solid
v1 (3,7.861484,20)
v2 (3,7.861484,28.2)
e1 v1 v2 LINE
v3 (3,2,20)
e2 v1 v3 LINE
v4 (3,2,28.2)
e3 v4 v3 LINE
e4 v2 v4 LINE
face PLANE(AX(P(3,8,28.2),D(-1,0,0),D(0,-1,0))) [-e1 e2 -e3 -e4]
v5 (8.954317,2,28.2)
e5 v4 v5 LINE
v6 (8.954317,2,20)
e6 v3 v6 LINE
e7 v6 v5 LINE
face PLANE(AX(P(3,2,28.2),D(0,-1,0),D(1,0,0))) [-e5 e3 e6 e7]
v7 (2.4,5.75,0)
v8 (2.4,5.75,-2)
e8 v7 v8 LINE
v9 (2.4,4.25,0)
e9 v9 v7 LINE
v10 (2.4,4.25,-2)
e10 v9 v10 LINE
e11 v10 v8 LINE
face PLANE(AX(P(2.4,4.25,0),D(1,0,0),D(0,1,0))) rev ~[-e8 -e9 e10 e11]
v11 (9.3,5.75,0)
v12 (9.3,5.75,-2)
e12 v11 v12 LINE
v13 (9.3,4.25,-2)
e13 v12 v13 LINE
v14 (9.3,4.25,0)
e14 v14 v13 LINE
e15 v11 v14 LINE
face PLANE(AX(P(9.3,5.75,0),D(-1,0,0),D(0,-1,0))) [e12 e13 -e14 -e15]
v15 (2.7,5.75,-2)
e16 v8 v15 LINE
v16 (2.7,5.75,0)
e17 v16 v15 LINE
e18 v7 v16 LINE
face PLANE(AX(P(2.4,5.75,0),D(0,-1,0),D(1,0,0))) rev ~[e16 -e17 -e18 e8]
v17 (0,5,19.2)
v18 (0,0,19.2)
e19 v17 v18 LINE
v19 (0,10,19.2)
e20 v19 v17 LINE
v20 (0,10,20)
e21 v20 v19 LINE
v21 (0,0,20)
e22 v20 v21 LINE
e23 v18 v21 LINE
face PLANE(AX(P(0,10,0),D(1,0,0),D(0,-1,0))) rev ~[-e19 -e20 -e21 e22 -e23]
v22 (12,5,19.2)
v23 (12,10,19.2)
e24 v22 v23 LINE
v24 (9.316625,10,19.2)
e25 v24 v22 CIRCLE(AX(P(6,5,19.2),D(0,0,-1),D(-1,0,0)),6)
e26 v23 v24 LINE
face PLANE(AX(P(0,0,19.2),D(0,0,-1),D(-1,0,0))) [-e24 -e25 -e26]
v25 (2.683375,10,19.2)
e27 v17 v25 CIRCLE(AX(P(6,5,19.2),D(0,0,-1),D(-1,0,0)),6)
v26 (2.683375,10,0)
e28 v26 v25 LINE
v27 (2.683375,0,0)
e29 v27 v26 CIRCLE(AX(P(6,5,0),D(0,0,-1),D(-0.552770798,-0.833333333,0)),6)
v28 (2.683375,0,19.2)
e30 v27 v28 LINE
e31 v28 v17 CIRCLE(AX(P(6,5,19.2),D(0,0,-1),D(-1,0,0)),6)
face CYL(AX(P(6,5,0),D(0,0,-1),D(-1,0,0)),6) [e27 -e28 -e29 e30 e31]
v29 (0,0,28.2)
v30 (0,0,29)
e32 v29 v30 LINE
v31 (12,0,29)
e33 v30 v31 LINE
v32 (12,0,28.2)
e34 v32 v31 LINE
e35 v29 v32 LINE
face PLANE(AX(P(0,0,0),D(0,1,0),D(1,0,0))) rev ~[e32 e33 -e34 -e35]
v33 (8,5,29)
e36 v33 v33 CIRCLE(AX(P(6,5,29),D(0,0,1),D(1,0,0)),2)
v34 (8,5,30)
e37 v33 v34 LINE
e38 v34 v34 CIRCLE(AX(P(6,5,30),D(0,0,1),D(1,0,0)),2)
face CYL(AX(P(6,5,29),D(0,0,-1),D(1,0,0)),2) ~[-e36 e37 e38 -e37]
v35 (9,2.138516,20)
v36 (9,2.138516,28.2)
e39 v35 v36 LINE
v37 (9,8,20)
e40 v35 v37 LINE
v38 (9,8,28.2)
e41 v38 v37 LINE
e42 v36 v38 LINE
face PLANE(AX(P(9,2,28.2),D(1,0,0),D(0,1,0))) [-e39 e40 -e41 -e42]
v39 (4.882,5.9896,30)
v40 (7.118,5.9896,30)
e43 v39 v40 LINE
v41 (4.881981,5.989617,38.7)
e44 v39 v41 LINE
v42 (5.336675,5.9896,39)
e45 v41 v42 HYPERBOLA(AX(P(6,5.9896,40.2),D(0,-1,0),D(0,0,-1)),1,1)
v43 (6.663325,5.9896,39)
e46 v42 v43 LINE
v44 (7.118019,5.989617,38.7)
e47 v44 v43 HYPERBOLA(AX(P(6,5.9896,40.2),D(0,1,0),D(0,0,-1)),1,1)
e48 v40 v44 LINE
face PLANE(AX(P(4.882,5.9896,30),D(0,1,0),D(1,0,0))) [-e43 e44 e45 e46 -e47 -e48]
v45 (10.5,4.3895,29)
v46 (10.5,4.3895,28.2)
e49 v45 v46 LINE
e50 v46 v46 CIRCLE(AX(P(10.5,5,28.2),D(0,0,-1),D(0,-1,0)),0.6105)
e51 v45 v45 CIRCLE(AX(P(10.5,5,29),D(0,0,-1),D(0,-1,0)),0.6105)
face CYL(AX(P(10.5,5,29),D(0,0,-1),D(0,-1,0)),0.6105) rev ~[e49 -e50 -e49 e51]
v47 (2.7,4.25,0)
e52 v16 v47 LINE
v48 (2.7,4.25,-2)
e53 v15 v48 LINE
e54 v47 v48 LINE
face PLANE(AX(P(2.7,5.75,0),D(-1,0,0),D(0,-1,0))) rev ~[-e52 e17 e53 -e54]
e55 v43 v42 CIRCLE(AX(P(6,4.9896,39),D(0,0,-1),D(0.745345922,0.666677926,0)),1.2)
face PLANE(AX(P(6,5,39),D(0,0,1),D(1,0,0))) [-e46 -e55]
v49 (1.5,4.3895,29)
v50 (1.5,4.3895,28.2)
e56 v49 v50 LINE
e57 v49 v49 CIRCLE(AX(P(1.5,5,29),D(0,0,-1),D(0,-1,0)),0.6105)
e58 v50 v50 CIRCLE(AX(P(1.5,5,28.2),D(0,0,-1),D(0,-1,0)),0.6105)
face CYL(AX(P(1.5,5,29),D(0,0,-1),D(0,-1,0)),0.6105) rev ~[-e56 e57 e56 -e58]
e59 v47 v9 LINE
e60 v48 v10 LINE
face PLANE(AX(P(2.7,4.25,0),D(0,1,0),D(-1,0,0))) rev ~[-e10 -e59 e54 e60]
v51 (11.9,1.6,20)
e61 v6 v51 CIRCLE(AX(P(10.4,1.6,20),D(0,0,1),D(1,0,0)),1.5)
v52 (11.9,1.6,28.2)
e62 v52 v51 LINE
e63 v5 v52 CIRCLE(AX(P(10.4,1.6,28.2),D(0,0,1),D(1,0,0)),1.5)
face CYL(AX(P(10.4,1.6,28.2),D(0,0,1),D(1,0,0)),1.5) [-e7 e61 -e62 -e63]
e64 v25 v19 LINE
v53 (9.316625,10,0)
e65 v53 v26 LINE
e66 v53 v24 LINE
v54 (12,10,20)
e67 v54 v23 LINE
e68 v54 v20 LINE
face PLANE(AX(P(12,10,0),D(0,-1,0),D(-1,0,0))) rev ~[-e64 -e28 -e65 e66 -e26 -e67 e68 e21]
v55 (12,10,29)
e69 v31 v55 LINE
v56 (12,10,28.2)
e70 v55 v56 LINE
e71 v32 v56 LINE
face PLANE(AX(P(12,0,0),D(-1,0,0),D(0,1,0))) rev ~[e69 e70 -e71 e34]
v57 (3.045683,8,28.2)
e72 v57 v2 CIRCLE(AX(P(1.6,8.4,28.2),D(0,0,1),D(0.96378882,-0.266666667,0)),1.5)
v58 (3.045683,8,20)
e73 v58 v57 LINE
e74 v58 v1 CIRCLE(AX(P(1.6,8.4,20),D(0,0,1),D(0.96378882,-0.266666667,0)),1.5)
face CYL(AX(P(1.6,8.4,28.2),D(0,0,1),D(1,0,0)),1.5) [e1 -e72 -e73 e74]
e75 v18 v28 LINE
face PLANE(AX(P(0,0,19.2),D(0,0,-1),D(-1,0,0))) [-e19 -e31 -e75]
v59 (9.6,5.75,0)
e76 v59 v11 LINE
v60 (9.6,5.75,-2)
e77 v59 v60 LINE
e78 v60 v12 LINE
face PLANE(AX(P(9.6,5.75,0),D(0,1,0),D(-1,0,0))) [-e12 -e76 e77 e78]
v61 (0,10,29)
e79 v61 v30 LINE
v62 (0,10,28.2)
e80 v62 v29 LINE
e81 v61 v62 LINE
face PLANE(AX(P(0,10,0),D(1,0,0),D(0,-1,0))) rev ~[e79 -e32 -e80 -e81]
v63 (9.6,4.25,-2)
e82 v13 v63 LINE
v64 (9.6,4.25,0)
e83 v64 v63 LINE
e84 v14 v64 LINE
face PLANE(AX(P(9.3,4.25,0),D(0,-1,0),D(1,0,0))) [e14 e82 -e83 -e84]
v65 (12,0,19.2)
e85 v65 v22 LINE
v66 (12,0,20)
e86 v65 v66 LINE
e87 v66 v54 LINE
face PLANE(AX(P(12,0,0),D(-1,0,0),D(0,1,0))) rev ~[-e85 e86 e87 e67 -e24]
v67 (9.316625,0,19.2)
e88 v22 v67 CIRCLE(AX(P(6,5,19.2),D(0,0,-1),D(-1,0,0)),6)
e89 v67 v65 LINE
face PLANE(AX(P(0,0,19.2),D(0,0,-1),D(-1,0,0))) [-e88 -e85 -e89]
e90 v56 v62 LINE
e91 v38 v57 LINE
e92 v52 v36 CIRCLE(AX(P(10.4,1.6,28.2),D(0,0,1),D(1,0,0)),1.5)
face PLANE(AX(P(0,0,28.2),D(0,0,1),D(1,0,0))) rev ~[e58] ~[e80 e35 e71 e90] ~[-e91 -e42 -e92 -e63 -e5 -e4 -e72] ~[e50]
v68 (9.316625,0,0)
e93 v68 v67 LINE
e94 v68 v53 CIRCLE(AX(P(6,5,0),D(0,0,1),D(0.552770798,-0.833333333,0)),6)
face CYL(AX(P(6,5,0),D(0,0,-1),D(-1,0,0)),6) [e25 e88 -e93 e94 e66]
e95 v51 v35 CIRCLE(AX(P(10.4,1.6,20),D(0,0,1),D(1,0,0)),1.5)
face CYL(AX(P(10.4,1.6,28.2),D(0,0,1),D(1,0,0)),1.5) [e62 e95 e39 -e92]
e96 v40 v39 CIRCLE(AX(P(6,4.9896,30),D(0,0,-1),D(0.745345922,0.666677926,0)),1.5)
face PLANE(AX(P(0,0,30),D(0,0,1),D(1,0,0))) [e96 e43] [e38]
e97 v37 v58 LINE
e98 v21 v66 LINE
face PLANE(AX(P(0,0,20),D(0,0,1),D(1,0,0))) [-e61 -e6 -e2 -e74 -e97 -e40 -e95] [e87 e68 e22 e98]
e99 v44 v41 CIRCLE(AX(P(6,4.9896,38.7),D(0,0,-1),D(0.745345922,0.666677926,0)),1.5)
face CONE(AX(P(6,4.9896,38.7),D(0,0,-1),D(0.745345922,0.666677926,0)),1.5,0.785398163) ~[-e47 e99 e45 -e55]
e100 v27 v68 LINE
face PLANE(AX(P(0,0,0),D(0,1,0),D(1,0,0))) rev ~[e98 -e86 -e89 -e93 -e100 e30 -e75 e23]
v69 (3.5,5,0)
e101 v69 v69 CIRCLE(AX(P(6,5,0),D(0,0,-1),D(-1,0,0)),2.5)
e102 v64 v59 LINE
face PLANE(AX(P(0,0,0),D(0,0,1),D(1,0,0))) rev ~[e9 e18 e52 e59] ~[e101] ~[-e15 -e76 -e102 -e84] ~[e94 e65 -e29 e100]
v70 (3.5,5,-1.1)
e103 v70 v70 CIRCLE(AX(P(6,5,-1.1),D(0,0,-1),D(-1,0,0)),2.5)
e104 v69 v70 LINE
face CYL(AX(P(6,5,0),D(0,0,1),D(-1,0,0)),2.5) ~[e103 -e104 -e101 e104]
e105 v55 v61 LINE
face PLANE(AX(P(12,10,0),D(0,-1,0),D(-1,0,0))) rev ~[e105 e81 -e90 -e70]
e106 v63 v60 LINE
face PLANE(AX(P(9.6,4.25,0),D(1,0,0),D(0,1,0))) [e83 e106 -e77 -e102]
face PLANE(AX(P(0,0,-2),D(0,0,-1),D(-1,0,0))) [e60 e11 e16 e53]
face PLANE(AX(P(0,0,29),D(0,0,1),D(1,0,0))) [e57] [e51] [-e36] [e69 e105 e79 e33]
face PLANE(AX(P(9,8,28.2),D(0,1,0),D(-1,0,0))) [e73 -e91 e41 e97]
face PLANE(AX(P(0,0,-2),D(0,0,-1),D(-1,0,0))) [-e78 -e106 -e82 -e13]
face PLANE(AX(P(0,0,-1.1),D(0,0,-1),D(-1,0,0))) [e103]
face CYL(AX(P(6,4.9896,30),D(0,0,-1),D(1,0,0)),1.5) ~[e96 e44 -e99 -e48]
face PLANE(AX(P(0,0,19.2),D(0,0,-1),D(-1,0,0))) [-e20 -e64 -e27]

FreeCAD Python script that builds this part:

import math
import FreeCAD as App
import Part
import Sketcher

V = App.Vector
Q = App.Units.Quantity


def edges_at(feature, points):
    """Names of the edges that pass closest to the given points."""
    edges = feature.Shape.Edges
    near = lambda p: min(range(len(edges)), key=lambda i: edges[i].distToShape(Part.Vertex(*p))[0])
    return sorted({f"Edge{near(p) + 1}" for p in points})

doc = App.newDocument("Part")
body = doc.addObject("PartDesign::Body", "Body")

# Sketch on XY plane
sketch1 = body.newObject("Sketcher::SketchObject", "Sketch")
sketch1.AttachmentSupport = (doc.getObject("XY_Plane"), [""])
sketch1.MapMode = "FlatFace"
sketch1.addGeometry([
    Part.LineSegment(V(0, 10, 0), V(0, 0, 0)),
    Part.LineSegment(V(0, 0, 0), V(12, 0, 0)),
    Part.LineSegment(V(12, 0, 0), V(12, 10, 0)),
    Part.LineSegment(V(12, 10, 0), V(0, 10, 0)),
], False)
sketch1.addConstraint([
    Sketcher.Constraint("Coincident", 0, 2, 1, 1),
    Sketcher.Constraint("Coincident", 1, 2, 2, 1),
    Sketcher.Constraint("Coincident", 2, 2, 3, 1),
    Sketcher.Constraint("Coincident", 3, 2, 0, 1),
    Sketcher.Constraint("Vertical", 0),
    Sketcher.Constraint("Horizontal", 1),
    Sketcher.Constraint("Vertical", 2),
    Sketcher.Constraint("Horizontal", 3),
    Sketcher.Constraint("Coincident", 0, 2, -1, 1),
    Sketcher.Constraint("DistanceX", 1, 1, 1, 2, Q("12 mm")),
    Sketcher.Constraint("DistanceY", 0, 2, 0, 1, Q("10 mm")),
])
pad1 = body.newObject("PartDesign::Pad", "Pad")
pad1.Profile = sketch1
pad1.Length = 20

# Sketch on XY plane
sketch2 = body.newObject("Sketcher::SketchObject", "Sketch001")
sketch2.AttachmentSupport = (doc.getObject("XY_Plane"), [""])
sketch2.MapMode = "FlatFace"
sketch2.AttachmentOffset = App.Placement(V(0, 0, 20), App.Rotation())
sketch2.addGeometry([
    Part.LineSegment(V(0, 0, 0), V(12, 0, 0)),
    Part.LineSegment(V(12, 0, 0), V(12, 10, 0)),
    Part.LineSegment(V(12, 10, 0), V(0, 10, 0)),
    Part.LineSegment(V(0, 10, 0), V(0, 0, 0)),
], False)
sketch2.addConstraint([
    Sketcher.Constraint("Coincident", 0, 2, 1, 1),
    Sketcher.Constraint("Coincident", 1, 2, 2, 1),
    Sketcher.Constraint("Coincident", 2, 2, 3, 1),
    Sketcher.Constraint("Coincident", 3, 2, 0, 1),
    Sketcher.Constraint("Horizontal", 0),
    Sketcher.Constraint("Vertical", 1),
    Sketcher.Constraint("Horizontal", 2),
    Sketcher.Constraint("Vertical", 3),
    Sketcher.Constraint("Coincident", 3, 2, -1, 1),
    Sketcher.Constraint("DistanceX", 0, 1, 0, 2, Q("12 mm")),
    Sketcher.Constraint("DistanceY", 1, 1, 1, 2, Q("10 mm")),
])
pad2 = body.newObject("PartDesign::Pad", "Pad001")
pad2.Profile = sketch2
pad2.Length = 9

# Sketch on XY plane
sketch3 = body.newObject("Sketcher::SketchObject", "Sketch002")
sketch3.AttachmentSupport = (doc.getObject("XY_Plane"), [""])
sketch3.MapMode = "FlatFace"
sketch3.AttachmentOffset = App.Placement(V(0, 0, 29), App.Rotation())
sketch3.addGeometry([
    Part.Circle(V(1.5, 5, 0), V(0, 0, 1), 0.6105),
    Part.Circle(V(10.5, 5, 0), V(0, 0, 1), 0.6105),
], False)
sketch3.addConstraint([
    Sketcher.Constraint("Equal", 0, 1),
    Sketcher.Constraint("Horizontal", 0, 3, 1, 3),
    Sketcher.Constraint("Diameter", 0, Q("1.221 mm")),
    Sketcher.Constraint("DistanceY", -1, 1, 0, 3, Q("5 mm")),
    Sketcher.Constraint("DistanceX", 0, 3, 1, 3, Q("9 mm")),
    Sketcher.Constraint("DistanceX", -1, 1, 0, 3, Q("1.5 mm")),
])
doc.recompute()
hole = body.newObject("PartDesign::Hole", "Hole")
hole.Profile = sketch3
hole.ThreadType = "None"
hole.Diameter = 1.221
hole.DepthType = "Dimension"
hole.Depth = 0.8
hole.DrillPoint = "Flat"

# Sketch on XY plane
sketch4 = body.newObject("Sketcher::SketchObject", "Sketch003")
sketch4.AttachmentSupport = (doc.getObject("XY_Plane"), [""])
sketch4.MapMode = "FlatFace"
sketch4.AttachmentOffset = App.Placement(V(0, 0, 28.2), App.Rotation())
sketch4.addGeometry([
    Part.LineSegment(V(12, 10, 0), V(0, 10, 0)),  # 0
    Part.LineSegment(V(0, 10, 0), V(0, 0, 0)),  # 1
    Part.LineSegment(V(0, 0, 0), V(12, 0, 0)),  # 2
    Part.LineSegment(V(12, 0, 0), V(12, 10, 0)),  # 3
    Part.LineSegment(V(9, 2, 0), V(3, 2, 0)),  # 4
    Part.LineSegment(V(3, 2, 0), V(3, 8, 0)),  # 5
    Part.LineSegment(V(3, 8, 0), V(9, 8, 0)),  # 6
    Part.LineSegment(V(9, 8, 0), V(9, 2, 0)),  # 7
], False)
sketch4.addConstraint([
    Sketcher.Constraint("Coincident", 0, 2, 1, 1),
    Sketcher.Constraint("Coincident", 1, 2, 2, 1),
    Sketcher.Constraint("Coincident", 2, 2, 3, 1),
    Sketcher.Constraint("Coincident", 3, 2, 0, 1),
    Sketcher.Constraint("Coincident", 4, 2, 5, 1),
    Sketcher.Constraint("Coincident", 5, 2, 6, 1),
    Sketcher.Constraint("Coincident", 6, 2, 7, 1),
    Sketcher.Constraint("Coincident", 7, 2, 4, 1),
    Sketcher.Constraint("Horizontal", 0),
    Sketcher.Constraint("Vertical", 1),
    Sketcher.Constraint("Horizontal", 2),
    Sketcher.Constraint("Vertical", 3),
    Sketcher.Constraint("Horizontal", 4),
    Sketcher.Constraint("Vertical", 5),
    Sketcher.Constraint("Horizontal", 6),
    Sketcher.Constraint("Vertical", 7),
    Sketcher.Constraint("Coincident", 1, 2, -1, 1),
    Sketcher.Constraint("Equal", 6, 5),
    Sketcher.Constraint("DistanceY", -1, 1, 4, 2, Q("2 mm")),
    Sketcher.Constraint("DistanceY", 5, 2, 0, 2, Q("2 mm")),
    Sketcher.Constraint("DistanceX", 0, 2, 0, 1, Q("12 mm")),
    Sketcher.Constraint("DistanceX", 4, 2, 4, 1, Q("6 mm")),
    Sketcher.Constraint("DistanceX", -1, 1, 4, 2, Q("3 mm")),
])
pocket1 = body.newObject("PartDesign::Pocket", "Pocket")
pocket1.Profile = sketch4
pocket1.Length = 8.2

# Sketch on XY plane
sketch5 = body.newObject("Sketcher::SketchObject", "Sketch004")
sketch5.AttachmentSupport = (doc.getObject("XY_Plane"), [""])
sketch5.MapMode = "FlatFace"
sketch5.AttachmentOffset = App.Placement(V(0, 0, 28.2), App.Rotation())
sketch5.addGeometry([
    Part.Circle(V(1.6, 8.4, 0), V(0, 0, 1), 1.5),
    Part.Circle(V(10.4, 1.6, 0), V(0, 0, 1), 1.5),
], False)
sketch5.addConstraint([
    Sketcher.Constraint("Equal", 0, 1),
    Sketcher.Constraint("Diameter", 0, Q("3 mm")),
    Sketcher.Constraint("DistanceX", -1, 1, 0, 3, Q("1.6 mm")),
    Sketcher.Constraint("DistanceY", -1, 1, 1, 3, Q("1.6 mm")),
    Sketcher.Constraint("DistanceY", -1, 1, 0, 3, Q("8.4 mm")),
    Sketcher.Constraint("DistanceX", -1, 1, 1, 3, Q("10.4 mm")),
])
pad3 = body.newObject("PartDesign::Pad", "Pad002")
pad3.Profile = sketch5
pad3.Length = 8.2
pad3.Reversed = True

# Sketch on XY plane
sketch6 = body.newObject("Sketcher::SketchObject", "Sketch005")
sketch6.AttachmentSupport = (doc.getObject("XY_Plane"), [""])
sketch6.MapMode = "FlatFace"
sketch6.AttachmentOffset = App.Placement(V(0, 0, 29), App.Rotation())
sketch6.addGeometry(Part.Circle(V(6, 5, 0), V(0, 0, 1), 2), False)
sketch6.addConstraint([
    Sketcher.Constraint("Diameter", 0, Q("4 mm")),
    Sketcher.Constraint("DistanceX", -1, 1, 0, 3, Q("6 mm")),
    Sketcher.Constraint("DistanceY", -1, 1, 0, 3, Q("5 mm")),
])
pad4 = body.newObject("PartDesign::Pad", "Pad003")
pad4.Profile = sketch6
pad4.Length = 1

# Sketch on XY plane
sketch7 = body.newObject("Sketcher::SketchObject", "Sketch006")
sketch7.AttachmentSupport = (doc.getObject("XY_Plane"), [""])
sketch7.MapMode = "FlatFace"
sketch7.AttachmentOffset = App.Placement(V(0, 0, 30), App.Rotation())
sketch7.addGeometry([
    Part.ArcOfCircle(Part.Circle(V(6, 4.9896, 0), V(0, 0, 1), 1.5), math.radians(138.18882), math.radians(401.81118)),
    Part.LineSegment(V(4.882, 5.9896, 0), V(7.118, 5.9896, 0)),
], False)
sketch7.addConstraint([
    Sketcher.Constraint("Coincident", 0, 1, 1, 1),
    Sketcher.Constraint("Coincident", 1, 2, 0, 2),
    Sketcher.Constraint("Horizontal", 1),
    Sketcher.Constraint("Radius", 0, Q("1.5 mm")),
    Sketcher.Constraint("DistanceX", -1, 1, 0, 3, Q("6 mm")),
    Sketcher.Constraint("DistanceY", 0, 3, 0, 1, Q("1 mm")),
    Sketcher.Constraint("DistanceY", -1, 1, 0, 3, Q("4.9896 mm")),
])
pad5 = body.newObject("PartDesign::Pad", "Pad004")
pad5.Profile = sketch7
pad5.Length = 9
doc.recompute()

chamfer = body.newObject("PartDesign::Chamfer", "Chamfer")
chamfer.Base = (pad5, edges_at(pad5, [(6, 3.49, 39)]))
chamfer.Size = 0.3

# Sketch on XY plane
sketch8 = body.newObject("Sketcher::SketchObject", "Sketch007")
sketch8.AttachmentSupport = (doc.getObject("XY_Plane"), [""])
sketch8.MapMode = "FlatFace"
sketch8.addGeometry([
    Part.LineSegment(V(9.316625, 10, 0), V(12, 10, 0)),  # 0
    Part.LineSegment(V(12, 10, 0), V(12, 5, 0)),  # 1
    Part.ArcOfCircle(Part.Circle(V(6, 5, 0), V(0, 0, 1), 6), math.radians(0), math.radians(56.44269)),  # 2
    Part.ArcOfCircle(Part.Circle(V(6, 5, 0), V(0, 0, 1), 6), math.radians(-56.44269), math.radians(0)),  # 3
    Part.LineSegment(V(12, 5, 0), V(12, 0, 0)),  # 4
    Part.LineSegment(V(12, 0, 0), V(9.316625, 0, 0)),  # 5
    Part.LineSegment(V(0, 10, 0), V(2.683375, 10, 0)),  # 6
    Part.ArcOfCircle(Part.Circle(V(6, 5, 0), V(0, 0, 1), 6), math.radians(123.55731), math.radians(180)),  # 7
    Part.LineSegment(V(0, 5, 0), V(0, 10, 0)),  # 8
    Part.LineSegment(V(0, 0, 0), V(0, 5, 0)),  # 9
    Part.ArcOfCircle(Part.Circle(V(6, 5, 0), V(0, 0, 1), 6), math.radians(180), math.radians(236.44269)),  # 10
    Part.LineSegment(V(2.683375, 0, 0), V(0, 0, 0)),  # 11
], False)
sketch8.addConstraint([
    Sketcher.Constraint("Coincident", 0, 2, 1, 1),
    Sketcher.Constraint("Tangent", 1, 2, 2, 1),
    Sketcher.Constraint("Coincident", 2, 2, 0, 1),
    Sketcher.Constraint("Tangent", 3, 2, 4, 1),
    Sketcher.Constraint("Coincident", 4, 2, 5, 1),
    Sketcher.Constraint("Coincident", 5, 2, 3, 1),
    Sketcher.Constraint("Coincident", 6, 2, 7, 1),
    Sketcher.Constraint("Tangent", 7, 2, 8, 1),
    Sketcher.Constraint("Coincident", 8, 2, 6, 1),
    Sketcher.Constraint("Tangent", 9, 2, 10, 1),
    Sketcher.Constraint("Coincident", 10, 2, 11, 1),
    Sketcher.Constraint("Coincident", 11, 2, 9, 1),
    Sketcher.Constraint("Horizontal", 0),
    Sketcher.Constraint("Vertical", 1),
    Sketcher.Constraint("Vertical", 4),
    Sketcher.Constraint("Horizontal", 5),
    Sketcher.Constraint("Horizontal", 6),
    Sketcher.Constraint("Vertical", 8),
    Sketcher.Constraint("Vertical", 9),
    Sketcher.Constraint("Horizontal", 11),
    Sketcher.Constraint("Coincident", 11, 2, -1, 1),
    Sketcher.Constraint("Coincident", 3, 3, 2, 3),
    Sketcher.Constraint("Coincident", 7, 3, 2, 3),
    Sketcher.Constraint("Coincident", 10, 3, 2, 3),
    Sketcher.Constraint("Equal", 2, 3),
    Sketcher.Constraint("Equal", 3, 7),
    Sketcher.Constraint("Equal", 7, 10),
    Sketcher.Constraint("PointOnObject", 4, 2, -1),
    Sketcher.Constraint("Horizontal", 2, 2, 6, 2),
    Sketcher.Constraint("Vertical", 2, 2, 5, 2),
    Sketcher.Constraint("Radius", 2, Q("6 mm")),
    Sketcher.Constraint("DistanceY", 1, 2, 1, 1, Q("5 mm")),
])
pocket2 = body.newObject("PartDesign::Pocket", "Pocket001")
pocket2.Profile = sketch8
pocket2.Length = 19.2
pocket2.Reversed = True

# Sketch on XY plane
sketch9 = body.newObject("Sketcher::SketchObject", "Sketch008")
sketch9.AttachmentSupport = (doc.getObject("XY_Plane"), [""])
sketch9.MapMode = "FlatFace"
sketch9.addGeometry([
    Part.LineSegment(V(9.6, 4.25, 0), V(9.3, 4.25, 0)),  # 0
    Part.LineSegment(V(9.3, 4.25, 0), V(9.3, 5.75, 0)),  # 1
    Part.LineSegment(V(9.3, 5.75, 0), V(9.6, 5.75, 0)),  # 2
    Part.LineSegment(V(9.6, 5.75, 0), V(9.6, 4.25, 0)),  # 3
    Part.LineSegment(V(2.7, 5.75, 0), V(2.7, 4.25, 0)),  # 4
    Part.LineSegment(V(2.7, 4.25, 0), V(2.4, 4.25, 0)),  # 5
    Part.LineSegment(V(2.4, 4.25, 0), V(2.4, 5.75, 0)),  # 6
    Part.LineSegment(V(2.4, 5.75, 0), V(2.7, 5.75, 0)),  # 7
], False)
sketch9.addConstraint([
    Sketcher.Constraint("Coincident", 0, 2, 1, 1),
    Sketcher.Constraint("Coincident", 1, 2, 2, 1),
    Sketcher.Constraint("Coincident", 2, 2, 3, 1),
    Sketcher.Constraint("Coincident", 3, 2, 0, 1),
    Sketcher.Constraint("Coincident", 4, 2, 5, 1),
    Sketcher.Constraint("Coincident", 5, 2, 6, 1),
    Sketcher.Constraint("Coincident", 6, 2, 7, 1),
    Sketcher.Constraint("Coincident", 7, 2, 4, 1),
    Sketcher.Constraint("Horizontal", 0),
    Sketcher.Constraint("Vertical", 1),
    Sketcher.Constraint("Horizontal", 2),
    Sketcher.Constraint("Vertical", 3),
    Sketcher.Constraint("Vertical", 4),
    Sketcher.Constraint("Horizontal", 5),
    Sketcher.Constraint("Vertical", 6),
    Sketcher.Constraint("Horizontal", 7),
    Sketcher.Constraint("Horizontal", 3, 2, 4, 2),
    Sketcher.Constraint("Horizontal", 2, 2, 6, 2),
    Sketcher.Constraint("Equal", 2, 5),
    Sketcher.Constraint("DistanceX", 0, 2, 0, 1, Q("0.3 mm")),
    Sketcher.Constraint("DistanceY", 1, 1, 1, 2, Q("1.5 mm")),
    Sketcher.Constraint("DistanceX", 4, 2, 3, 2, Q("6.9 mm")),
    Sketcher.Constraint("DistanceX", -1, 1, 0, 2, Q("9.3 mm")),
    Sketcher.Constraint("DistanceY", -1, 1, 0, 2, Q("4.25 mm")),
])
pad6 = body.newObject("PartDesign::Pad", "Pad005")
pad6.Profile = sketch9
pad6.Length = 2
pad6.Reversed = True

# Sketch on XY plane
sketch10 = body.newObject("Sketcher::SketchObject", "Sketch009")
sketch10.AttachmentSupport = (doc.getObject("XY_Plane"), [""])
sketch10.MapMode = "FlatFace"
sketch10.addGeometry(Part.Circle(V(6, 5, 0), V(0, 0, 1), 2.5), False)
sketch10.addConstraint([
    Sketcher.Constraint("Diameter", 0, Q("5 mm")),
    Sketcher.Constraint("DistanceX", -1, 1, 0, 3, Q("6 mm")),
    Sketcher.Constraint("DistanceY", -1, 1, 0, 3, Q("5 mm")),
])
pad7 = body.newObject("PartDesign::Pad", "Pad006")
pad7.Profile = sketch10
pad7.Length = 1.1
pad7.Reversed = True

doc.recompute()
